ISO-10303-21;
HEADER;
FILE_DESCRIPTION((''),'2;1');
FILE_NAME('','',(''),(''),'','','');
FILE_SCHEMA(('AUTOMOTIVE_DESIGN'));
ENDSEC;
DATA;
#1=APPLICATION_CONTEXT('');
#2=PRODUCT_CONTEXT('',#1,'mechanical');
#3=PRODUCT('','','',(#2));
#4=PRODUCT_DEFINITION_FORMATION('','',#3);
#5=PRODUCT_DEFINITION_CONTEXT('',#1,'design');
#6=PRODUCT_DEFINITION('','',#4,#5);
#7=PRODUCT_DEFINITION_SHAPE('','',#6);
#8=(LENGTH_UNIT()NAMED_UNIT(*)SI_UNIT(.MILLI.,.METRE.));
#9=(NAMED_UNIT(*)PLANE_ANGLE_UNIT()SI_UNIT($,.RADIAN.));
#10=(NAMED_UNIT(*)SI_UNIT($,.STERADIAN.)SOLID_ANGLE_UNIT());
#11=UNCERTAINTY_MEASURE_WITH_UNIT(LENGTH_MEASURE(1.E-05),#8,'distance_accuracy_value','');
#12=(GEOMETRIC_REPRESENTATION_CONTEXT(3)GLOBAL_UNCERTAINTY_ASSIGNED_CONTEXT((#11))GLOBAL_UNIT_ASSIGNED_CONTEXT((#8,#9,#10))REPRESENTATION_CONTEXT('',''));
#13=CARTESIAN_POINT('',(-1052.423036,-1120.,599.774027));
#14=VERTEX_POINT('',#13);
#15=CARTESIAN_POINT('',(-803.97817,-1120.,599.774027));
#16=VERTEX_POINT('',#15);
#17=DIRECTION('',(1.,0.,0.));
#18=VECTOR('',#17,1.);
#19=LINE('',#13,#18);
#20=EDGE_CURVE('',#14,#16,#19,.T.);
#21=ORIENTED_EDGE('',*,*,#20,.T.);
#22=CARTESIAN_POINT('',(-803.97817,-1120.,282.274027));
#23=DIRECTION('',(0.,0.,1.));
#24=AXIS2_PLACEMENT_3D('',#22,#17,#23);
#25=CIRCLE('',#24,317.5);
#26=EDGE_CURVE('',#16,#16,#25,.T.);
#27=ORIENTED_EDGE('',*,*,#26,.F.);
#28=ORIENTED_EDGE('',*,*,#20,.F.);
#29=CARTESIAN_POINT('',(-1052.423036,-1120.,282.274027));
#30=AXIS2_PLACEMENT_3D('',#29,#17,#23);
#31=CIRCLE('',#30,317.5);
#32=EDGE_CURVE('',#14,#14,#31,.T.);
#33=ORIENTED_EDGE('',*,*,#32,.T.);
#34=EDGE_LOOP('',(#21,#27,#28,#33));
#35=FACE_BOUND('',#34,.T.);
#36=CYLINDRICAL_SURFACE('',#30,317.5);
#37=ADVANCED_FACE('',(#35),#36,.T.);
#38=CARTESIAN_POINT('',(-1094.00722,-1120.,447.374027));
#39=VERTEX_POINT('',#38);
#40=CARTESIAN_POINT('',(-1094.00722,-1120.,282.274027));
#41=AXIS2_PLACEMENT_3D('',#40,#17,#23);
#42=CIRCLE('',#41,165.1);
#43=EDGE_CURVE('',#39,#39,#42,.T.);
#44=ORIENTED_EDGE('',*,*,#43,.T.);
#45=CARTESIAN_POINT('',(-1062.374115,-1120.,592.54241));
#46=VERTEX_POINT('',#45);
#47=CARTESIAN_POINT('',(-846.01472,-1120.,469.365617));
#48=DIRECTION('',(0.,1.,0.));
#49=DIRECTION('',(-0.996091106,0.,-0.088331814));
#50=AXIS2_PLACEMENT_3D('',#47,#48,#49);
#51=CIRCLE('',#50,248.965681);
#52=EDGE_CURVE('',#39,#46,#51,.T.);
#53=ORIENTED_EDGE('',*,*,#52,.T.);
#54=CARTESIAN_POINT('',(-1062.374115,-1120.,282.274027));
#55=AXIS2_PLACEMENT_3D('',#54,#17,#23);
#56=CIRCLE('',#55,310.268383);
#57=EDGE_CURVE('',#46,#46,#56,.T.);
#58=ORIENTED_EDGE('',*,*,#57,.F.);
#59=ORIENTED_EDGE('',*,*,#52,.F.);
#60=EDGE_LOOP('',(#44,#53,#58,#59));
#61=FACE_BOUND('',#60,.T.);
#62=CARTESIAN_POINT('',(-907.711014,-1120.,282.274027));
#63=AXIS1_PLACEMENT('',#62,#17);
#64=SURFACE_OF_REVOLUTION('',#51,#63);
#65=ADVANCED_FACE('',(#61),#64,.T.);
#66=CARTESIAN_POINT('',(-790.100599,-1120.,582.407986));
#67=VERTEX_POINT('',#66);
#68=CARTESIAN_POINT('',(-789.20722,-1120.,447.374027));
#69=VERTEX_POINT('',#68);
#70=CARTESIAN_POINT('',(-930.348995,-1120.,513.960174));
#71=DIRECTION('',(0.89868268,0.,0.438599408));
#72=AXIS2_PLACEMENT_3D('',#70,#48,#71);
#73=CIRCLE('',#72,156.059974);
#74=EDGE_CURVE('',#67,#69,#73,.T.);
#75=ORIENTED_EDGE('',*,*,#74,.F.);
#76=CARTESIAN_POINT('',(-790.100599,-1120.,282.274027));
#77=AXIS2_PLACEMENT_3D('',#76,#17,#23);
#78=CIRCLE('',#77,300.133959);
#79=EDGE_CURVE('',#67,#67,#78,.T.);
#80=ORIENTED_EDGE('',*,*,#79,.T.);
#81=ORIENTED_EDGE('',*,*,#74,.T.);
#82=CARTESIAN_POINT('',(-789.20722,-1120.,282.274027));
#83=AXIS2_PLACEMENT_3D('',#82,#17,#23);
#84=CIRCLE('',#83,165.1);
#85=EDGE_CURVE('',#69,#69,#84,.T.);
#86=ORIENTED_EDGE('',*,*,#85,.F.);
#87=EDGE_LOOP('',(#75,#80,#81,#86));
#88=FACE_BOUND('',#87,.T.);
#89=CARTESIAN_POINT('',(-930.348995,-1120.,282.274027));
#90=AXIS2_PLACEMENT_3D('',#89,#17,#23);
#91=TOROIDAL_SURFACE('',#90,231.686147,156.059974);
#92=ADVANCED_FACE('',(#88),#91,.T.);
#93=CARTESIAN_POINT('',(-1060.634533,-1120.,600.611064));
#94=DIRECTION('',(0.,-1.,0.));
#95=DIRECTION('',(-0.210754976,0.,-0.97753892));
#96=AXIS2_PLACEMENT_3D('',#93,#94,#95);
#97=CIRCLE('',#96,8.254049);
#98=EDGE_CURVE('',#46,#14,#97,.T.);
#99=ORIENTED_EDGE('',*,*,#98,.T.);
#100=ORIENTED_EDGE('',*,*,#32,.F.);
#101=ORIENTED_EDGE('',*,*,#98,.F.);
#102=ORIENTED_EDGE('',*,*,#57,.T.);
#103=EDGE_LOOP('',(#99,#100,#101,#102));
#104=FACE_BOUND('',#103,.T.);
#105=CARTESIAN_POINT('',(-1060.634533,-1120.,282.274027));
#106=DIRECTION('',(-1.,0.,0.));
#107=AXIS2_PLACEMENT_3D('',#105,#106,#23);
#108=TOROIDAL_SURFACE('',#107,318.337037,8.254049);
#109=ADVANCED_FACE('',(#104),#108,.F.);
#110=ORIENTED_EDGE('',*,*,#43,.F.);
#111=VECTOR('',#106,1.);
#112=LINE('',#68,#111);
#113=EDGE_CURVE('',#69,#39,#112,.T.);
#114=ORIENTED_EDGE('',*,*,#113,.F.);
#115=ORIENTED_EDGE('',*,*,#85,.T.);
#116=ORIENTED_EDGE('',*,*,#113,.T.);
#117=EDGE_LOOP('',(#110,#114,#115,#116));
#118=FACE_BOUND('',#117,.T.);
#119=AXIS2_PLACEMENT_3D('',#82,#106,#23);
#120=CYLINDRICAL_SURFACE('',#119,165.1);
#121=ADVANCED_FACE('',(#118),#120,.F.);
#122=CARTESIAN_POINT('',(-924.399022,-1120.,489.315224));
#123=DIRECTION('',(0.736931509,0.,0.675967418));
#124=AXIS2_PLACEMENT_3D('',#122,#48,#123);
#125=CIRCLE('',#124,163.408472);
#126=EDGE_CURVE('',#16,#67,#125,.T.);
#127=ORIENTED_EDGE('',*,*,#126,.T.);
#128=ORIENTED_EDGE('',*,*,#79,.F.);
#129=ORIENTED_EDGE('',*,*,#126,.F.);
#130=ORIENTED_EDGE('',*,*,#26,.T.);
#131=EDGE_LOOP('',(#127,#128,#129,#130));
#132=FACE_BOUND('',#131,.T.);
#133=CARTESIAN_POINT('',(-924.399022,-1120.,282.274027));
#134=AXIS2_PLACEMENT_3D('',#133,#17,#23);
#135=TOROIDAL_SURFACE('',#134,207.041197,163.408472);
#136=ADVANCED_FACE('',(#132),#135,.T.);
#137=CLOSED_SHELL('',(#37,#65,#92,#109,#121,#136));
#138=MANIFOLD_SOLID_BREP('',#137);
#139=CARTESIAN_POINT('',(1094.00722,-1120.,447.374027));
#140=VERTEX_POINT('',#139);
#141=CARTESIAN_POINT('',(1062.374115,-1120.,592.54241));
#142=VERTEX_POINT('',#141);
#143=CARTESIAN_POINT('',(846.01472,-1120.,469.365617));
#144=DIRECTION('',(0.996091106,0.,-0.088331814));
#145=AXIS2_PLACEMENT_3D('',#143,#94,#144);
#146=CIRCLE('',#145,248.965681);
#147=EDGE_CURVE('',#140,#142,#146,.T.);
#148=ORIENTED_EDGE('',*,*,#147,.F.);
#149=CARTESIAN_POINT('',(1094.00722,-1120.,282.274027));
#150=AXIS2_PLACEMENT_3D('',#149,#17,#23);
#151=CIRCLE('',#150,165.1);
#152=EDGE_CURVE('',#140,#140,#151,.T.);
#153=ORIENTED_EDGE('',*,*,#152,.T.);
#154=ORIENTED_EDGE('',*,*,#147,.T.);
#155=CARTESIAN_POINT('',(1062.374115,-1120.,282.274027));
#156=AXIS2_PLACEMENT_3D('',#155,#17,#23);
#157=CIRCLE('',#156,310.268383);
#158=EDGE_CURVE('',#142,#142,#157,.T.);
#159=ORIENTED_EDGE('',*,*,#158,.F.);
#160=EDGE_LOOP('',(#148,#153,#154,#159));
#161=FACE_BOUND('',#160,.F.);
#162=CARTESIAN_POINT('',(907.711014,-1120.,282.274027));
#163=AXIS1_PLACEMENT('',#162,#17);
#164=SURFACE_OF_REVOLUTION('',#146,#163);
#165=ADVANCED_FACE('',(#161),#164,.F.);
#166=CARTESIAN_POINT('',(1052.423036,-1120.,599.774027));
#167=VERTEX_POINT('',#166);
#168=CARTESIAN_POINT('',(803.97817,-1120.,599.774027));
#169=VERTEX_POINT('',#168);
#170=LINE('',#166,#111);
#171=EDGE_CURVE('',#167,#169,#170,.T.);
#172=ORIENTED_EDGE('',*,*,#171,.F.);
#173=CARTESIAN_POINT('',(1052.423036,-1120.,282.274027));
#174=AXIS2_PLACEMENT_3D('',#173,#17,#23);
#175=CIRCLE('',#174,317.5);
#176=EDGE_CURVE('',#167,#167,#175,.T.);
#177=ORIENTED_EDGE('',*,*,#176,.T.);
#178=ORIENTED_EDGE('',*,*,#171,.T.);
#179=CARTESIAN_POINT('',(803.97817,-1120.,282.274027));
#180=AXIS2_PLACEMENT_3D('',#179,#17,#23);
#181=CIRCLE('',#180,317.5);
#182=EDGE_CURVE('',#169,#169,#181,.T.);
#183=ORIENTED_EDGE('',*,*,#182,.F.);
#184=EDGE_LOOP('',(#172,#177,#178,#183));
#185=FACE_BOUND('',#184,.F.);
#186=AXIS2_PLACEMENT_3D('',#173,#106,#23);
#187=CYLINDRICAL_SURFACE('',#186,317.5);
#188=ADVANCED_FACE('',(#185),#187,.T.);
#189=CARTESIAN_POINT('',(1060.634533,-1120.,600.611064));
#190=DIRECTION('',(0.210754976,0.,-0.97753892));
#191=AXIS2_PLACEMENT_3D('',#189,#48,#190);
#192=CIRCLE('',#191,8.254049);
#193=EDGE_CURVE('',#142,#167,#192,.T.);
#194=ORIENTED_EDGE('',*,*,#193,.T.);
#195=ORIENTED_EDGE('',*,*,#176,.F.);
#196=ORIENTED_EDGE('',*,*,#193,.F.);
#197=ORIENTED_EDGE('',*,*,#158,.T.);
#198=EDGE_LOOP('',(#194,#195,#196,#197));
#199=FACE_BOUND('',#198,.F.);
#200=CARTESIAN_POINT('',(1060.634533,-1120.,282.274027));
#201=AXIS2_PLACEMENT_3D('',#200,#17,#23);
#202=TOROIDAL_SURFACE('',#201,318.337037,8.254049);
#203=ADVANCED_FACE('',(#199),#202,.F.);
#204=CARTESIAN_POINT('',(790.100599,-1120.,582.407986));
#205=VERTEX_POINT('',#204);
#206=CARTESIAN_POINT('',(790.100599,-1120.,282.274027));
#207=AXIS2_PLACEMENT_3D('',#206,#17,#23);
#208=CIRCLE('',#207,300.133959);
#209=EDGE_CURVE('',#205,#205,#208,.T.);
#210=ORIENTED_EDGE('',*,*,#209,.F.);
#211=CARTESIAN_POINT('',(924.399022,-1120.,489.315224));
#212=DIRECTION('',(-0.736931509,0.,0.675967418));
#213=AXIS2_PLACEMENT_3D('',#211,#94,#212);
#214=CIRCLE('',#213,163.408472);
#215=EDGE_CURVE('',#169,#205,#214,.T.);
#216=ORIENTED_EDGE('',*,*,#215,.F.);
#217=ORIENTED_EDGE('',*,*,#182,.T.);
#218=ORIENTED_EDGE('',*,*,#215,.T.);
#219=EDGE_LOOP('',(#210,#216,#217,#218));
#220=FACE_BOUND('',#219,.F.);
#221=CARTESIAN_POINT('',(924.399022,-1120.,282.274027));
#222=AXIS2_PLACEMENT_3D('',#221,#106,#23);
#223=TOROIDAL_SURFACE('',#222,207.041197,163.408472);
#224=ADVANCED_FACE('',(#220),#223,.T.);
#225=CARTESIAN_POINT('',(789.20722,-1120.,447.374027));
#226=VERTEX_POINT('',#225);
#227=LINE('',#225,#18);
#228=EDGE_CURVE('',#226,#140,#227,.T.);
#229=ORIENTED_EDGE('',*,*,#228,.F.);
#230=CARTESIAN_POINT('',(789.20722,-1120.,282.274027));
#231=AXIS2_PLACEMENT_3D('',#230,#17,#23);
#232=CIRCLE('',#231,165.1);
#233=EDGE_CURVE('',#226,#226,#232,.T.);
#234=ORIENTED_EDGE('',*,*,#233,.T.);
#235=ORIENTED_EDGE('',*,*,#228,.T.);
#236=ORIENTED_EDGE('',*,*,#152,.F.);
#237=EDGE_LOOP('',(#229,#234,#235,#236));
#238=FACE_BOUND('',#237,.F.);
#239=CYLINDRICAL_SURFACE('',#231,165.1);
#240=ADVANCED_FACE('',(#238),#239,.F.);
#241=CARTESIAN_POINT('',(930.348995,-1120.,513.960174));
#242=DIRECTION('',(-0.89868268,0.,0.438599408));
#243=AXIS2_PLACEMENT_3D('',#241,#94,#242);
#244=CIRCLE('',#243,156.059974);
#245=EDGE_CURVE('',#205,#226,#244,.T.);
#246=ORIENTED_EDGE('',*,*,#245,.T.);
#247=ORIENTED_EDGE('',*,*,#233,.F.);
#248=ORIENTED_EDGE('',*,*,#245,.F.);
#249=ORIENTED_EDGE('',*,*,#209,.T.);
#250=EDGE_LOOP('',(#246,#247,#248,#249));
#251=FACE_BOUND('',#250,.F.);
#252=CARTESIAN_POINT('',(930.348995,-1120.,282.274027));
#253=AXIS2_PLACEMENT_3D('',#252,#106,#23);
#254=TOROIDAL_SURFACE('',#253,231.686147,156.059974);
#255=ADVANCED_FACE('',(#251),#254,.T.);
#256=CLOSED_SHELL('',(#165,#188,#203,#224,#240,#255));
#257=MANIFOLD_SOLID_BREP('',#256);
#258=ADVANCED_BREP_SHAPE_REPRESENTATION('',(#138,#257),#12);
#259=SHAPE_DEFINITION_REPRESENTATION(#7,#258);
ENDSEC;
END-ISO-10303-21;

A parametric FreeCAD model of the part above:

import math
import FreeCAD as App
import Part
import Sketcher
from FreeCAD import Vector
Q = App.Units.Quantity

doc = App.newDocument("Part")
params = doc.addObject("Spreadsheet::Sheet", "Params")
for row, (alias, value) in enumerate([
    ("sketch1_width", "12 in"),
    ("revolution_angle", "360 deg"),
], start=1):
    params.set(f"A{row}", alias)
    params.set(f"B{row}", "=" + value)
    params.setAlias(f"B{row}", alias)

body = doc.addObject("PartDesign::Body", "Body")

sketch1 = body.newObject("Sketcher::SketchObject", "Sketch")
sketch1.AttachmentSupport = (doc.getObject("XZ_Plane"), [""])
sketch1.MapMode = "FlatFace"
sketch1.AttachmentOffset = App.Placement(Vector(0, 0, 1120), App.Rotation())
sketch1.addGeometry([
    Part.ArcOfCircle(Part.Circle(Vector(930.348995, 513.960174, 0), Vector(0, 0, 1), 156.059974), math.radians(153.985448), math.radians(205.25643)),
    Part.LineSegment(Vector(789.20722, 447.374027, 0), Vector(1094.00722, 447.374027, 0)),
    Part.ArcOfCircle(Part.Circle(Vector(846.01472, 469.365617, 0), Vector(0, 0, 1), 248.965681), math.radians(-5.067645), math.radians(29.653537)),
    Part.ArcOfCircle(Part.Circle(Vector(1060.634533, 600.611064, 0), Vector(0, 0, 1), 8.254049), math.radians(-174.179674), math.radians(-77.833401)),
    Part.LineSegment(Vector(1052.423036, 599.774027, 0), Vector(803.97817, 599.774027, 0)),
    Part.ArcOfCircle(Part.Circle(Vector(924.399022, 489.315224, 0), Vector(0, 0, 1), 163.408472), math.radians(137.470679), math.radians(145.271137)),
], False)
sketch1.addGeometry(Part.LineSegment(Vector(789.20722, 282.274027, 0), Vector(1094.00722, 282.274027, 0)), True)
sketch1.addConstraint([
    Sketcher.Constraint("Coincident", 0, 2, 1, 1),
    Sketcher.Constraint("Coincident", 1, 2, 2, 1),
    Sketcher.Constraint("Coincident", 2, 2, 3, 2),
    Sketcher.Constraint("Coincident", 3, 1, 4, 1),
    Sketcher.Constraint("Coincident", 4, 2, 5, 1),
    Sketcher.Constraint("Coincident", 5, 2, 0, 1),
    Sketcher.Constraint("Horizontal", 1),
    Sketcher.Constraint("Horizontal", 4),
    Sketcher.Constraint("Horizontal", 6),
    Sketcher.Constraint("Vertical", 0, 2, 6, 1),
    Sketcher.Constraint("Vertical", 1, 2, 6, 2),
    Sketcher.Constraint("DistanceX", 1, 1, 1, 2, Q("12 in")),
    Sketcher.Constraint("DistanceY", 1, 2, 3, 1, Q("6 in")),
    Sketcher.Constraint("DistanceY", 6, 1, 0, 2, Q("6.5 in")),
    Sketcher.Constraint("Radius", 2, Q("248.965681 mm")),
    Sketcher.Constraint("Radius", 3, Q("8.254049 mm")),
    Sketcher.Constraint("Radius", 0, Q("156.059974 mm")),
    Sketcher.Constraint("Radius", 5, Q("163.408472 mm")),
    Sketcher.Constraint("DistanceX", -1, 1, 5, 2, Q("790.100599 mm")),
    Sketcher.Constraint("DistanceX", 2, 3, 1, 2, Q("247.9925 mm")),
    Sketcher.Constraint("DistanceX", 4, 2, 4, 1, Q("248.444866 mm")),
    Sketcher.Constraint("DistanceX", -1, 1, 2, 3, Q("846.01472 mm")),
    Sketcher.Constraint("DistanceY", -1, 1, 2, 2, Q("592.54241 mm")),
    Sketcher.Constraint("DistanceX", -1, 1, 4, 2, Q("803.97817 mm")),
    Sketcher.Constraint("DistanceX", 0, 3, 3, 3, Q("130.285538 mm")),
    Sketcher.Constraint("DistanceY", 0, 3, 3, 3, Q("86.65089 mm")),
])
sketch1.setExpression("Constraints[11]", "Params.sketch1_width")
revolution = body.newObject("PartDesign::Revolution", "Revolution")
revolution.Profile = sketch1
revolution.ReferenceAxis = (sketch1, ["Axis0"])
revolution.setExpression("Angle", "Params.revolution_angle")
body2 = doc.addObject("PartDesign::Body", "Body001")
doc.recompute()

mirroring = doc.addObject("Part::Mirroring", "Mirroring")
mirroring.Source = body
mirroring.Base = Vector(0, 0, 0)
mirroring.Normal = Vector(1, 0, 0)
body2.BaseFeature = mirroring
doc.recompute()
mirroring.Visibility = False

doc.recompute()
